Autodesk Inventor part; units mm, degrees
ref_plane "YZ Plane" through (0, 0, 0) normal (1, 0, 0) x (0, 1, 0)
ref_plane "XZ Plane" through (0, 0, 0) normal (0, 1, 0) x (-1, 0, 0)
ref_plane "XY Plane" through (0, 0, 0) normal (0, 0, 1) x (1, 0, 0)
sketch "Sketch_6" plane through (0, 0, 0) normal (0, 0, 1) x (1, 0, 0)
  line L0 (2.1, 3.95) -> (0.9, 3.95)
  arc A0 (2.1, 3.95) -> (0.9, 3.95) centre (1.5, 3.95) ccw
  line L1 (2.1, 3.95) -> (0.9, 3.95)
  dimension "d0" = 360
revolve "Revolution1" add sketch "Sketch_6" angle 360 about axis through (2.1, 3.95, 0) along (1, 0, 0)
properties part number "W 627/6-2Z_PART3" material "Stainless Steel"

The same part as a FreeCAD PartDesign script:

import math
import FreeCAD as App
import Part
import Sketcher

doc = App.newDocument("Part")
body = doc.addObject("PartDesign::Body", "Body")

# Sketch on XY plane
sketch1 = body.newObject("Sketcher::SketchObject", "Sketch")
sketch1.AttachmentSupport = (doc.getObject("XY_Plane"), [""])
sketch1.MapMode = "FlatFace"
sketch1.addGeometry([
    Part.LineSegment(App.Vector(0.9, 3.95, 0), App.Vector(2.1, 3.95, 0)),
    Part.ArcOfCircle(Part.Circle(App.Vector(1.5, 3.95, 0), App.Vector(0, 0, 1), 0.6), math.radians(0), math.radians(180)),
], False)
sketch1.addGeometry(Part.LineSegment(App.Vector(0.9, 3.95, 0), App.Vector(2.1, 3.95, 0)), True)  # axis
sketch1.addConstraint([
    Sketcher.Constraint("Coincident", 0, 1, 1, 2),
    Sketcher.Constraint("Coincident", 1, 1, 0, 2),
    Sketcher.Constraint("Horizontal", 0),
    Sketcher.Constraint("Horizontal", 2),
    Sketcher.Constraint("Coincident", 2, 1, 0, 1),
    Sketcher.Constraint("Horizontal", 1, 3, 0, 1),
    Sketcher.Constraint("Equal", 0, 2),
    Sketcher.Constraint("Radius", 1, 0.6),
    Sketcher.Constraint("DistanceX", -1, 1, 1, 3, 1.5),
    Sketcher.Constraint("DistanceY", -1, 1, 1, 3, 3.95),
])
revolution = body.newObject("PartDesign::Revolution", "Revolution")
revolution.Profile = sketch1
revolution.ReferenceAxis = (sketch1, ["Axis0"])
revolution.Angle = 360

doc.recompute()
